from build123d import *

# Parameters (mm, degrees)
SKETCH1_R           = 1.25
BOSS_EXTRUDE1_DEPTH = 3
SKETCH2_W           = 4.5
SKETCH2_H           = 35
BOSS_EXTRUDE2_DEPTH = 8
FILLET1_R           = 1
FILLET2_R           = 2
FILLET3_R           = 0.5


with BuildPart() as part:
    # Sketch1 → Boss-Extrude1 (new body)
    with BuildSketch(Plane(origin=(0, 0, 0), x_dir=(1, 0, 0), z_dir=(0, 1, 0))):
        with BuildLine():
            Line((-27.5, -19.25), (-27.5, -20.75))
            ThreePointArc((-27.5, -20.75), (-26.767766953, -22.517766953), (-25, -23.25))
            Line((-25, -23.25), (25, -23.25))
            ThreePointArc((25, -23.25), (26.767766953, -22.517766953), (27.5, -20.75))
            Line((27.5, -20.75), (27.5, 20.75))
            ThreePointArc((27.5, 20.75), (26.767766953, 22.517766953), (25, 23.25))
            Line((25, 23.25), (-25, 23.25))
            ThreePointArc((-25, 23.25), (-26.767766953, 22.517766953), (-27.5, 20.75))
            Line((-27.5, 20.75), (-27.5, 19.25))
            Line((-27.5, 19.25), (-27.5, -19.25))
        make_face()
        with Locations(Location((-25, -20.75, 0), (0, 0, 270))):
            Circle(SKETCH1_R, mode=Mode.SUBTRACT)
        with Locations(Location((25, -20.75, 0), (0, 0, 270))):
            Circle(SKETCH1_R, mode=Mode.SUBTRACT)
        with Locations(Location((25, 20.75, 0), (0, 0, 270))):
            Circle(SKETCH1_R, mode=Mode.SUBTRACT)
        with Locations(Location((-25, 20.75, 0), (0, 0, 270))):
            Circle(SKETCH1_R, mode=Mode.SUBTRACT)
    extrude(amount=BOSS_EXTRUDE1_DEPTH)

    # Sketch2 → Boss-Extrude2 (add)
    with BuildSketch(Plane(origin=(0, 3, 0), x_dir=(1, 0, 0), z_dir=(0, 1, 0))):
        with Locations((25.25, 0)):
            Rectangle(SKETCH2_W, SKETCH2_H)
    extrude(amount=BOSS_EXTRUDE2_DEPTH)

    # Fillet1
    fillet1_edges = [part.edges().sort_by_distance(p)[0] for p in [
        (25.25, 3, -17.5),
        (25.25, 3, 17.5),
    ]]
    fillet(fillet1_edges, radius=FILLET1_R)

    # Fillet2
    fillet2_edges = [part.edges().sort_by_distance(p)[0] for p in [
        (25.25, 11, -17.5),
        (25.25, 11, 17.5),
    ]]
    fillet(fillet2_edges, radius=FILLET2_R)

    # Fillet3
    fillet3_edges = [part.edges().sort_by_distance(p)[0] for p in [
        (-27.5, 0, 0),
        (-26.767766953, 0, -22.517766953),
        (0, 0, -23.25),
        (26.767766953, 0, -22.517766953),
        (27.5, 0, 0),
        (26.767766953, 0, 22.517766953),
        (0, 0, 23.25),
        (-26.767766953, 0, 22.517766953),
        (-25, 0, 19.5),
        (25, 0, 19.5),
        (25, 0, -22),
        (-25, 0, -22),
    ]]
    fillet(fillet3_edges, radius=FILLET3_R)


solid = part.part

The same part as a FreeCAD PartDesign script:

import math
import FreeCAD as App
import Part
import Sketcher

V = App.Vector


def edges_at(feature, points):
    """Names of the edges that pass closest to the given points."""
    edges = feature.Shape.Edges
    near = lambda p: min(range(len(edges)), key=lambda i: edges[i].distToShape(Part.Vertex(*p))[0])
    return sorted({f"Edge{near(p) + 1}" for p in points})


def add_polygon(sketch, points):
    """Adds a closed chain of lines whose ends are joined by coincident constraints."""
    first, n = sketch.GeometryCount, len(points)
    for a, b in zip(points, points[1:] + points[:1]):
        sketch.addGeometry(Part.LineSegment(App.Vector(*a, 0), App.Vector(*b, 0)), False)
    for i in range(n):
        sketch.addConstraint(Sketcher.Constraint("Coincident", first + i, 2, first + (i + 1) % n, 1))

doc = App.newDocument("Part")
body = doc.addObject("PartDesign::Body", "Body")

# Sketch on XZ plane
sketch1 = body.newObject("Sketcher::SketchObject", "Sketch")
sketch1.AttachmentSupport = (doc.getObject("XZ_Plane"), [""])
sketch1.MapMode = "FlatFace"
sketch1.addGeometry([
    Part.ArcOfCircle(Part.Circle(V(-25, 20.8, 0), V(0, 0, 1), 2.5), math.radians(90), math.radians(180)),  # 0
    Part.LineSegment(V(-25, 23.2, 0), V(25, 23.2, 0)),  # 1
    Part.ArcOfCircle(Part.Circle(V(25, 20.8, 0), V(0, 0, 1), 2.5), math.radians(0), math.radians(90)),  # 2
    Part.LineSegment(V(27.5, 20.8, 0), V(27.5, -20.8, 0)),  # 3
    Part.ArcOfCircle(Part.Circle(V(25, -20.8, 0), V(0, 0, 1), 2.5), math.radians(-90), math.radians(0)),  # 4
    Part.LineSegment(V(25, -23.2, 0), V(-25, -23.2, 0)),  # 5
    Part.ArcOfCircle(Part.Circle(V(-25, -20.8, 0), V(0, 0, 1), 2.5), math.radians(180), math.radians(270)),  # 6
    Part.LineSegment(V(-27.5, -20.8, 0), V(-27.5, 20.8, 0)),  # 7
    Part.Circle(V(-25, 20.8, 0), V(0, 0, 1), 1.2),  # 8
    Part.Circle(V(25, 20.8, 0), V(0, 0, 1), 1.2),  # 9
    Part.Circle(V(-25, -20.8, 0), V(0, 0, 1), 1.2),  # 10
    Part.Circle(V(25, -20.8, 0), V(0, 0, 1), 1.2),  # 11
], False)
sketch1.addConstraint([
    Sketcher.Constraint("Tangent", 0, 1, 1, 1),
    Sketcher.Constraint("Tangent", 1, 2, 2, 2),
    Sketcher.Constraint("Tangent", 2, 1, 3, 1),
    Sketcher.Constraint("Tangent", 3, 2, 4, 2),
    Sketcher.Constraint("Tangent", 4, 1, 5, 1),
    Sketcher.Constraint("Tangent", 5, 2, 6, 2),
    Sketcher.Constraint("Tangent", 6, 1, 7, 1),
    Sketcher.Constraint("Tangent", 7, 2, 0, 2),
    Sketcher.Constraint("Horizontal", 1),
    Sketcher.Constraint("Vertical", 3),
    Sketcher.Constraint("Horizontal", 5),
    Sketcher.Constraint("Vertical", 7),
    Sketcher.Constraint("Coincident", 8, 3, 0, 3),
    Sketcher.Constraint("Coincident", 9, 3, 2, 3),
    Sketcher.Constraint("Coincident", 10, 3, 6, 3),
    Sketcher.Constraint("Coincident", 11, 3, 4, 3),
    Sketcher.Constraint("Equal", 0, 2),
    Sketcher.Constraint("Equal", 2, 4),
    Sketcher.Constraint("Equal", 4, 6),
    Sketcher.Constraint("Equal", 8, 9),
    Sketcher.Constraint("Equal", 9, 10),
    Sketcher.Constraint("Equal", 10, 11),
    Sketcher.Constraint("Symmetric", 0, 3, 4, 3, -1, 1),
    Sketcher.Constraint("Diameter", 8, 2.5),
    Sketcher.Constraint("Radius", 0, 2.5),
    Sketcher.Constraint("DistanceX", 1, 1, 1, 2, 50.0),
    Sketcher.Constraint("DistanceY", 3, 2, 3, 1, 41.5),
])
pad1 = body.newObject("PartDesign::Pad", "Pad")
pad1.Profile = sketch1
pad1.Length = 3
pad1.Reversed = True

# Sketch on XZ plane
sketch2 = body.newObject("Sketcher::SketchObject", "Sketch001")
sketch2.AttachmentSupport = (doc.getObject("XZ_Plane"), [""])
sketch2.MapMode = "FlatFace"
sketch2.AttachmentOffset = App.Placement(V(0, 0, -3), App.Rotation())
add_polygon(sketch2, [(23, -17.5), (23, 17.5), (27.5, 17.5), (27.5, -17.5)])  # lines 0-3
sketch2.addConstraint([
    Sketcher.Constraint("Vertical", 0),
    Sketcher.Constraint("Horizontal", 1),
    Sketcher.Constraint("Vertical", 2),
    Sketcher.Constraint("Horizontal", 3),
    Sketcher.Constraint("DistanceY", 0, 1, 0, 2, 35.0),
    Sketcher.Constraint("DistanceX", 1, 1, 1, 2, 4.5),
    Sketcher.Constraint("DistanceX", -1, 1, 0, 2, 23.0),
    Sketcher.Constraint("DistanceY", -1, 1, 0, 2, 17.5),
])
pad2 = body.newObject("PartDesign::Pad", "Pad001")
pad2.Profile = sketch2
pad2.Length = 8
pad2.Reversed = True
doc.recompute()

fillet = body.newObject("PartDesign::Fillet", "Fillet")
fillet.Base = (pad2, edges_at(pad2, [(25.25, 3, -17.5), (25.25, 3, 17.5)]))
fillet.Radius = 1
doc.recompute()

fillet2 = body.newObject("PartDesign::Fillet", "Fillet001")
fillet2.Base = (fillet, edges_at(fillet, [(25.25, 11, -17.5), (25.25, 11, 17.5)]))
fillet2.Radius = 2
doc.recompute()

fillet3 = body.newObject("PartDesign::Fillet", "Fillet002")
fillet3.Base = (fillet2, edges_at(fillet2, [
    (-27.5, 0, 0),
    (-26.768, 0, -22.518),
    (0, 0, -23.25),
    (26.768, 0, -22.518),
    (27.5, 0, 0),
    (26.768, 0, 22.518),
    (0, 0, 23.25),
    (-26.768, 0, 22.518),
    (-25, 0, 19.5),
    (25, 0, 19.5),
    (25, 0, -22),
    (-25, 0, -22),
]))
fillet3.Radius = 0.5

doc.recompute()
